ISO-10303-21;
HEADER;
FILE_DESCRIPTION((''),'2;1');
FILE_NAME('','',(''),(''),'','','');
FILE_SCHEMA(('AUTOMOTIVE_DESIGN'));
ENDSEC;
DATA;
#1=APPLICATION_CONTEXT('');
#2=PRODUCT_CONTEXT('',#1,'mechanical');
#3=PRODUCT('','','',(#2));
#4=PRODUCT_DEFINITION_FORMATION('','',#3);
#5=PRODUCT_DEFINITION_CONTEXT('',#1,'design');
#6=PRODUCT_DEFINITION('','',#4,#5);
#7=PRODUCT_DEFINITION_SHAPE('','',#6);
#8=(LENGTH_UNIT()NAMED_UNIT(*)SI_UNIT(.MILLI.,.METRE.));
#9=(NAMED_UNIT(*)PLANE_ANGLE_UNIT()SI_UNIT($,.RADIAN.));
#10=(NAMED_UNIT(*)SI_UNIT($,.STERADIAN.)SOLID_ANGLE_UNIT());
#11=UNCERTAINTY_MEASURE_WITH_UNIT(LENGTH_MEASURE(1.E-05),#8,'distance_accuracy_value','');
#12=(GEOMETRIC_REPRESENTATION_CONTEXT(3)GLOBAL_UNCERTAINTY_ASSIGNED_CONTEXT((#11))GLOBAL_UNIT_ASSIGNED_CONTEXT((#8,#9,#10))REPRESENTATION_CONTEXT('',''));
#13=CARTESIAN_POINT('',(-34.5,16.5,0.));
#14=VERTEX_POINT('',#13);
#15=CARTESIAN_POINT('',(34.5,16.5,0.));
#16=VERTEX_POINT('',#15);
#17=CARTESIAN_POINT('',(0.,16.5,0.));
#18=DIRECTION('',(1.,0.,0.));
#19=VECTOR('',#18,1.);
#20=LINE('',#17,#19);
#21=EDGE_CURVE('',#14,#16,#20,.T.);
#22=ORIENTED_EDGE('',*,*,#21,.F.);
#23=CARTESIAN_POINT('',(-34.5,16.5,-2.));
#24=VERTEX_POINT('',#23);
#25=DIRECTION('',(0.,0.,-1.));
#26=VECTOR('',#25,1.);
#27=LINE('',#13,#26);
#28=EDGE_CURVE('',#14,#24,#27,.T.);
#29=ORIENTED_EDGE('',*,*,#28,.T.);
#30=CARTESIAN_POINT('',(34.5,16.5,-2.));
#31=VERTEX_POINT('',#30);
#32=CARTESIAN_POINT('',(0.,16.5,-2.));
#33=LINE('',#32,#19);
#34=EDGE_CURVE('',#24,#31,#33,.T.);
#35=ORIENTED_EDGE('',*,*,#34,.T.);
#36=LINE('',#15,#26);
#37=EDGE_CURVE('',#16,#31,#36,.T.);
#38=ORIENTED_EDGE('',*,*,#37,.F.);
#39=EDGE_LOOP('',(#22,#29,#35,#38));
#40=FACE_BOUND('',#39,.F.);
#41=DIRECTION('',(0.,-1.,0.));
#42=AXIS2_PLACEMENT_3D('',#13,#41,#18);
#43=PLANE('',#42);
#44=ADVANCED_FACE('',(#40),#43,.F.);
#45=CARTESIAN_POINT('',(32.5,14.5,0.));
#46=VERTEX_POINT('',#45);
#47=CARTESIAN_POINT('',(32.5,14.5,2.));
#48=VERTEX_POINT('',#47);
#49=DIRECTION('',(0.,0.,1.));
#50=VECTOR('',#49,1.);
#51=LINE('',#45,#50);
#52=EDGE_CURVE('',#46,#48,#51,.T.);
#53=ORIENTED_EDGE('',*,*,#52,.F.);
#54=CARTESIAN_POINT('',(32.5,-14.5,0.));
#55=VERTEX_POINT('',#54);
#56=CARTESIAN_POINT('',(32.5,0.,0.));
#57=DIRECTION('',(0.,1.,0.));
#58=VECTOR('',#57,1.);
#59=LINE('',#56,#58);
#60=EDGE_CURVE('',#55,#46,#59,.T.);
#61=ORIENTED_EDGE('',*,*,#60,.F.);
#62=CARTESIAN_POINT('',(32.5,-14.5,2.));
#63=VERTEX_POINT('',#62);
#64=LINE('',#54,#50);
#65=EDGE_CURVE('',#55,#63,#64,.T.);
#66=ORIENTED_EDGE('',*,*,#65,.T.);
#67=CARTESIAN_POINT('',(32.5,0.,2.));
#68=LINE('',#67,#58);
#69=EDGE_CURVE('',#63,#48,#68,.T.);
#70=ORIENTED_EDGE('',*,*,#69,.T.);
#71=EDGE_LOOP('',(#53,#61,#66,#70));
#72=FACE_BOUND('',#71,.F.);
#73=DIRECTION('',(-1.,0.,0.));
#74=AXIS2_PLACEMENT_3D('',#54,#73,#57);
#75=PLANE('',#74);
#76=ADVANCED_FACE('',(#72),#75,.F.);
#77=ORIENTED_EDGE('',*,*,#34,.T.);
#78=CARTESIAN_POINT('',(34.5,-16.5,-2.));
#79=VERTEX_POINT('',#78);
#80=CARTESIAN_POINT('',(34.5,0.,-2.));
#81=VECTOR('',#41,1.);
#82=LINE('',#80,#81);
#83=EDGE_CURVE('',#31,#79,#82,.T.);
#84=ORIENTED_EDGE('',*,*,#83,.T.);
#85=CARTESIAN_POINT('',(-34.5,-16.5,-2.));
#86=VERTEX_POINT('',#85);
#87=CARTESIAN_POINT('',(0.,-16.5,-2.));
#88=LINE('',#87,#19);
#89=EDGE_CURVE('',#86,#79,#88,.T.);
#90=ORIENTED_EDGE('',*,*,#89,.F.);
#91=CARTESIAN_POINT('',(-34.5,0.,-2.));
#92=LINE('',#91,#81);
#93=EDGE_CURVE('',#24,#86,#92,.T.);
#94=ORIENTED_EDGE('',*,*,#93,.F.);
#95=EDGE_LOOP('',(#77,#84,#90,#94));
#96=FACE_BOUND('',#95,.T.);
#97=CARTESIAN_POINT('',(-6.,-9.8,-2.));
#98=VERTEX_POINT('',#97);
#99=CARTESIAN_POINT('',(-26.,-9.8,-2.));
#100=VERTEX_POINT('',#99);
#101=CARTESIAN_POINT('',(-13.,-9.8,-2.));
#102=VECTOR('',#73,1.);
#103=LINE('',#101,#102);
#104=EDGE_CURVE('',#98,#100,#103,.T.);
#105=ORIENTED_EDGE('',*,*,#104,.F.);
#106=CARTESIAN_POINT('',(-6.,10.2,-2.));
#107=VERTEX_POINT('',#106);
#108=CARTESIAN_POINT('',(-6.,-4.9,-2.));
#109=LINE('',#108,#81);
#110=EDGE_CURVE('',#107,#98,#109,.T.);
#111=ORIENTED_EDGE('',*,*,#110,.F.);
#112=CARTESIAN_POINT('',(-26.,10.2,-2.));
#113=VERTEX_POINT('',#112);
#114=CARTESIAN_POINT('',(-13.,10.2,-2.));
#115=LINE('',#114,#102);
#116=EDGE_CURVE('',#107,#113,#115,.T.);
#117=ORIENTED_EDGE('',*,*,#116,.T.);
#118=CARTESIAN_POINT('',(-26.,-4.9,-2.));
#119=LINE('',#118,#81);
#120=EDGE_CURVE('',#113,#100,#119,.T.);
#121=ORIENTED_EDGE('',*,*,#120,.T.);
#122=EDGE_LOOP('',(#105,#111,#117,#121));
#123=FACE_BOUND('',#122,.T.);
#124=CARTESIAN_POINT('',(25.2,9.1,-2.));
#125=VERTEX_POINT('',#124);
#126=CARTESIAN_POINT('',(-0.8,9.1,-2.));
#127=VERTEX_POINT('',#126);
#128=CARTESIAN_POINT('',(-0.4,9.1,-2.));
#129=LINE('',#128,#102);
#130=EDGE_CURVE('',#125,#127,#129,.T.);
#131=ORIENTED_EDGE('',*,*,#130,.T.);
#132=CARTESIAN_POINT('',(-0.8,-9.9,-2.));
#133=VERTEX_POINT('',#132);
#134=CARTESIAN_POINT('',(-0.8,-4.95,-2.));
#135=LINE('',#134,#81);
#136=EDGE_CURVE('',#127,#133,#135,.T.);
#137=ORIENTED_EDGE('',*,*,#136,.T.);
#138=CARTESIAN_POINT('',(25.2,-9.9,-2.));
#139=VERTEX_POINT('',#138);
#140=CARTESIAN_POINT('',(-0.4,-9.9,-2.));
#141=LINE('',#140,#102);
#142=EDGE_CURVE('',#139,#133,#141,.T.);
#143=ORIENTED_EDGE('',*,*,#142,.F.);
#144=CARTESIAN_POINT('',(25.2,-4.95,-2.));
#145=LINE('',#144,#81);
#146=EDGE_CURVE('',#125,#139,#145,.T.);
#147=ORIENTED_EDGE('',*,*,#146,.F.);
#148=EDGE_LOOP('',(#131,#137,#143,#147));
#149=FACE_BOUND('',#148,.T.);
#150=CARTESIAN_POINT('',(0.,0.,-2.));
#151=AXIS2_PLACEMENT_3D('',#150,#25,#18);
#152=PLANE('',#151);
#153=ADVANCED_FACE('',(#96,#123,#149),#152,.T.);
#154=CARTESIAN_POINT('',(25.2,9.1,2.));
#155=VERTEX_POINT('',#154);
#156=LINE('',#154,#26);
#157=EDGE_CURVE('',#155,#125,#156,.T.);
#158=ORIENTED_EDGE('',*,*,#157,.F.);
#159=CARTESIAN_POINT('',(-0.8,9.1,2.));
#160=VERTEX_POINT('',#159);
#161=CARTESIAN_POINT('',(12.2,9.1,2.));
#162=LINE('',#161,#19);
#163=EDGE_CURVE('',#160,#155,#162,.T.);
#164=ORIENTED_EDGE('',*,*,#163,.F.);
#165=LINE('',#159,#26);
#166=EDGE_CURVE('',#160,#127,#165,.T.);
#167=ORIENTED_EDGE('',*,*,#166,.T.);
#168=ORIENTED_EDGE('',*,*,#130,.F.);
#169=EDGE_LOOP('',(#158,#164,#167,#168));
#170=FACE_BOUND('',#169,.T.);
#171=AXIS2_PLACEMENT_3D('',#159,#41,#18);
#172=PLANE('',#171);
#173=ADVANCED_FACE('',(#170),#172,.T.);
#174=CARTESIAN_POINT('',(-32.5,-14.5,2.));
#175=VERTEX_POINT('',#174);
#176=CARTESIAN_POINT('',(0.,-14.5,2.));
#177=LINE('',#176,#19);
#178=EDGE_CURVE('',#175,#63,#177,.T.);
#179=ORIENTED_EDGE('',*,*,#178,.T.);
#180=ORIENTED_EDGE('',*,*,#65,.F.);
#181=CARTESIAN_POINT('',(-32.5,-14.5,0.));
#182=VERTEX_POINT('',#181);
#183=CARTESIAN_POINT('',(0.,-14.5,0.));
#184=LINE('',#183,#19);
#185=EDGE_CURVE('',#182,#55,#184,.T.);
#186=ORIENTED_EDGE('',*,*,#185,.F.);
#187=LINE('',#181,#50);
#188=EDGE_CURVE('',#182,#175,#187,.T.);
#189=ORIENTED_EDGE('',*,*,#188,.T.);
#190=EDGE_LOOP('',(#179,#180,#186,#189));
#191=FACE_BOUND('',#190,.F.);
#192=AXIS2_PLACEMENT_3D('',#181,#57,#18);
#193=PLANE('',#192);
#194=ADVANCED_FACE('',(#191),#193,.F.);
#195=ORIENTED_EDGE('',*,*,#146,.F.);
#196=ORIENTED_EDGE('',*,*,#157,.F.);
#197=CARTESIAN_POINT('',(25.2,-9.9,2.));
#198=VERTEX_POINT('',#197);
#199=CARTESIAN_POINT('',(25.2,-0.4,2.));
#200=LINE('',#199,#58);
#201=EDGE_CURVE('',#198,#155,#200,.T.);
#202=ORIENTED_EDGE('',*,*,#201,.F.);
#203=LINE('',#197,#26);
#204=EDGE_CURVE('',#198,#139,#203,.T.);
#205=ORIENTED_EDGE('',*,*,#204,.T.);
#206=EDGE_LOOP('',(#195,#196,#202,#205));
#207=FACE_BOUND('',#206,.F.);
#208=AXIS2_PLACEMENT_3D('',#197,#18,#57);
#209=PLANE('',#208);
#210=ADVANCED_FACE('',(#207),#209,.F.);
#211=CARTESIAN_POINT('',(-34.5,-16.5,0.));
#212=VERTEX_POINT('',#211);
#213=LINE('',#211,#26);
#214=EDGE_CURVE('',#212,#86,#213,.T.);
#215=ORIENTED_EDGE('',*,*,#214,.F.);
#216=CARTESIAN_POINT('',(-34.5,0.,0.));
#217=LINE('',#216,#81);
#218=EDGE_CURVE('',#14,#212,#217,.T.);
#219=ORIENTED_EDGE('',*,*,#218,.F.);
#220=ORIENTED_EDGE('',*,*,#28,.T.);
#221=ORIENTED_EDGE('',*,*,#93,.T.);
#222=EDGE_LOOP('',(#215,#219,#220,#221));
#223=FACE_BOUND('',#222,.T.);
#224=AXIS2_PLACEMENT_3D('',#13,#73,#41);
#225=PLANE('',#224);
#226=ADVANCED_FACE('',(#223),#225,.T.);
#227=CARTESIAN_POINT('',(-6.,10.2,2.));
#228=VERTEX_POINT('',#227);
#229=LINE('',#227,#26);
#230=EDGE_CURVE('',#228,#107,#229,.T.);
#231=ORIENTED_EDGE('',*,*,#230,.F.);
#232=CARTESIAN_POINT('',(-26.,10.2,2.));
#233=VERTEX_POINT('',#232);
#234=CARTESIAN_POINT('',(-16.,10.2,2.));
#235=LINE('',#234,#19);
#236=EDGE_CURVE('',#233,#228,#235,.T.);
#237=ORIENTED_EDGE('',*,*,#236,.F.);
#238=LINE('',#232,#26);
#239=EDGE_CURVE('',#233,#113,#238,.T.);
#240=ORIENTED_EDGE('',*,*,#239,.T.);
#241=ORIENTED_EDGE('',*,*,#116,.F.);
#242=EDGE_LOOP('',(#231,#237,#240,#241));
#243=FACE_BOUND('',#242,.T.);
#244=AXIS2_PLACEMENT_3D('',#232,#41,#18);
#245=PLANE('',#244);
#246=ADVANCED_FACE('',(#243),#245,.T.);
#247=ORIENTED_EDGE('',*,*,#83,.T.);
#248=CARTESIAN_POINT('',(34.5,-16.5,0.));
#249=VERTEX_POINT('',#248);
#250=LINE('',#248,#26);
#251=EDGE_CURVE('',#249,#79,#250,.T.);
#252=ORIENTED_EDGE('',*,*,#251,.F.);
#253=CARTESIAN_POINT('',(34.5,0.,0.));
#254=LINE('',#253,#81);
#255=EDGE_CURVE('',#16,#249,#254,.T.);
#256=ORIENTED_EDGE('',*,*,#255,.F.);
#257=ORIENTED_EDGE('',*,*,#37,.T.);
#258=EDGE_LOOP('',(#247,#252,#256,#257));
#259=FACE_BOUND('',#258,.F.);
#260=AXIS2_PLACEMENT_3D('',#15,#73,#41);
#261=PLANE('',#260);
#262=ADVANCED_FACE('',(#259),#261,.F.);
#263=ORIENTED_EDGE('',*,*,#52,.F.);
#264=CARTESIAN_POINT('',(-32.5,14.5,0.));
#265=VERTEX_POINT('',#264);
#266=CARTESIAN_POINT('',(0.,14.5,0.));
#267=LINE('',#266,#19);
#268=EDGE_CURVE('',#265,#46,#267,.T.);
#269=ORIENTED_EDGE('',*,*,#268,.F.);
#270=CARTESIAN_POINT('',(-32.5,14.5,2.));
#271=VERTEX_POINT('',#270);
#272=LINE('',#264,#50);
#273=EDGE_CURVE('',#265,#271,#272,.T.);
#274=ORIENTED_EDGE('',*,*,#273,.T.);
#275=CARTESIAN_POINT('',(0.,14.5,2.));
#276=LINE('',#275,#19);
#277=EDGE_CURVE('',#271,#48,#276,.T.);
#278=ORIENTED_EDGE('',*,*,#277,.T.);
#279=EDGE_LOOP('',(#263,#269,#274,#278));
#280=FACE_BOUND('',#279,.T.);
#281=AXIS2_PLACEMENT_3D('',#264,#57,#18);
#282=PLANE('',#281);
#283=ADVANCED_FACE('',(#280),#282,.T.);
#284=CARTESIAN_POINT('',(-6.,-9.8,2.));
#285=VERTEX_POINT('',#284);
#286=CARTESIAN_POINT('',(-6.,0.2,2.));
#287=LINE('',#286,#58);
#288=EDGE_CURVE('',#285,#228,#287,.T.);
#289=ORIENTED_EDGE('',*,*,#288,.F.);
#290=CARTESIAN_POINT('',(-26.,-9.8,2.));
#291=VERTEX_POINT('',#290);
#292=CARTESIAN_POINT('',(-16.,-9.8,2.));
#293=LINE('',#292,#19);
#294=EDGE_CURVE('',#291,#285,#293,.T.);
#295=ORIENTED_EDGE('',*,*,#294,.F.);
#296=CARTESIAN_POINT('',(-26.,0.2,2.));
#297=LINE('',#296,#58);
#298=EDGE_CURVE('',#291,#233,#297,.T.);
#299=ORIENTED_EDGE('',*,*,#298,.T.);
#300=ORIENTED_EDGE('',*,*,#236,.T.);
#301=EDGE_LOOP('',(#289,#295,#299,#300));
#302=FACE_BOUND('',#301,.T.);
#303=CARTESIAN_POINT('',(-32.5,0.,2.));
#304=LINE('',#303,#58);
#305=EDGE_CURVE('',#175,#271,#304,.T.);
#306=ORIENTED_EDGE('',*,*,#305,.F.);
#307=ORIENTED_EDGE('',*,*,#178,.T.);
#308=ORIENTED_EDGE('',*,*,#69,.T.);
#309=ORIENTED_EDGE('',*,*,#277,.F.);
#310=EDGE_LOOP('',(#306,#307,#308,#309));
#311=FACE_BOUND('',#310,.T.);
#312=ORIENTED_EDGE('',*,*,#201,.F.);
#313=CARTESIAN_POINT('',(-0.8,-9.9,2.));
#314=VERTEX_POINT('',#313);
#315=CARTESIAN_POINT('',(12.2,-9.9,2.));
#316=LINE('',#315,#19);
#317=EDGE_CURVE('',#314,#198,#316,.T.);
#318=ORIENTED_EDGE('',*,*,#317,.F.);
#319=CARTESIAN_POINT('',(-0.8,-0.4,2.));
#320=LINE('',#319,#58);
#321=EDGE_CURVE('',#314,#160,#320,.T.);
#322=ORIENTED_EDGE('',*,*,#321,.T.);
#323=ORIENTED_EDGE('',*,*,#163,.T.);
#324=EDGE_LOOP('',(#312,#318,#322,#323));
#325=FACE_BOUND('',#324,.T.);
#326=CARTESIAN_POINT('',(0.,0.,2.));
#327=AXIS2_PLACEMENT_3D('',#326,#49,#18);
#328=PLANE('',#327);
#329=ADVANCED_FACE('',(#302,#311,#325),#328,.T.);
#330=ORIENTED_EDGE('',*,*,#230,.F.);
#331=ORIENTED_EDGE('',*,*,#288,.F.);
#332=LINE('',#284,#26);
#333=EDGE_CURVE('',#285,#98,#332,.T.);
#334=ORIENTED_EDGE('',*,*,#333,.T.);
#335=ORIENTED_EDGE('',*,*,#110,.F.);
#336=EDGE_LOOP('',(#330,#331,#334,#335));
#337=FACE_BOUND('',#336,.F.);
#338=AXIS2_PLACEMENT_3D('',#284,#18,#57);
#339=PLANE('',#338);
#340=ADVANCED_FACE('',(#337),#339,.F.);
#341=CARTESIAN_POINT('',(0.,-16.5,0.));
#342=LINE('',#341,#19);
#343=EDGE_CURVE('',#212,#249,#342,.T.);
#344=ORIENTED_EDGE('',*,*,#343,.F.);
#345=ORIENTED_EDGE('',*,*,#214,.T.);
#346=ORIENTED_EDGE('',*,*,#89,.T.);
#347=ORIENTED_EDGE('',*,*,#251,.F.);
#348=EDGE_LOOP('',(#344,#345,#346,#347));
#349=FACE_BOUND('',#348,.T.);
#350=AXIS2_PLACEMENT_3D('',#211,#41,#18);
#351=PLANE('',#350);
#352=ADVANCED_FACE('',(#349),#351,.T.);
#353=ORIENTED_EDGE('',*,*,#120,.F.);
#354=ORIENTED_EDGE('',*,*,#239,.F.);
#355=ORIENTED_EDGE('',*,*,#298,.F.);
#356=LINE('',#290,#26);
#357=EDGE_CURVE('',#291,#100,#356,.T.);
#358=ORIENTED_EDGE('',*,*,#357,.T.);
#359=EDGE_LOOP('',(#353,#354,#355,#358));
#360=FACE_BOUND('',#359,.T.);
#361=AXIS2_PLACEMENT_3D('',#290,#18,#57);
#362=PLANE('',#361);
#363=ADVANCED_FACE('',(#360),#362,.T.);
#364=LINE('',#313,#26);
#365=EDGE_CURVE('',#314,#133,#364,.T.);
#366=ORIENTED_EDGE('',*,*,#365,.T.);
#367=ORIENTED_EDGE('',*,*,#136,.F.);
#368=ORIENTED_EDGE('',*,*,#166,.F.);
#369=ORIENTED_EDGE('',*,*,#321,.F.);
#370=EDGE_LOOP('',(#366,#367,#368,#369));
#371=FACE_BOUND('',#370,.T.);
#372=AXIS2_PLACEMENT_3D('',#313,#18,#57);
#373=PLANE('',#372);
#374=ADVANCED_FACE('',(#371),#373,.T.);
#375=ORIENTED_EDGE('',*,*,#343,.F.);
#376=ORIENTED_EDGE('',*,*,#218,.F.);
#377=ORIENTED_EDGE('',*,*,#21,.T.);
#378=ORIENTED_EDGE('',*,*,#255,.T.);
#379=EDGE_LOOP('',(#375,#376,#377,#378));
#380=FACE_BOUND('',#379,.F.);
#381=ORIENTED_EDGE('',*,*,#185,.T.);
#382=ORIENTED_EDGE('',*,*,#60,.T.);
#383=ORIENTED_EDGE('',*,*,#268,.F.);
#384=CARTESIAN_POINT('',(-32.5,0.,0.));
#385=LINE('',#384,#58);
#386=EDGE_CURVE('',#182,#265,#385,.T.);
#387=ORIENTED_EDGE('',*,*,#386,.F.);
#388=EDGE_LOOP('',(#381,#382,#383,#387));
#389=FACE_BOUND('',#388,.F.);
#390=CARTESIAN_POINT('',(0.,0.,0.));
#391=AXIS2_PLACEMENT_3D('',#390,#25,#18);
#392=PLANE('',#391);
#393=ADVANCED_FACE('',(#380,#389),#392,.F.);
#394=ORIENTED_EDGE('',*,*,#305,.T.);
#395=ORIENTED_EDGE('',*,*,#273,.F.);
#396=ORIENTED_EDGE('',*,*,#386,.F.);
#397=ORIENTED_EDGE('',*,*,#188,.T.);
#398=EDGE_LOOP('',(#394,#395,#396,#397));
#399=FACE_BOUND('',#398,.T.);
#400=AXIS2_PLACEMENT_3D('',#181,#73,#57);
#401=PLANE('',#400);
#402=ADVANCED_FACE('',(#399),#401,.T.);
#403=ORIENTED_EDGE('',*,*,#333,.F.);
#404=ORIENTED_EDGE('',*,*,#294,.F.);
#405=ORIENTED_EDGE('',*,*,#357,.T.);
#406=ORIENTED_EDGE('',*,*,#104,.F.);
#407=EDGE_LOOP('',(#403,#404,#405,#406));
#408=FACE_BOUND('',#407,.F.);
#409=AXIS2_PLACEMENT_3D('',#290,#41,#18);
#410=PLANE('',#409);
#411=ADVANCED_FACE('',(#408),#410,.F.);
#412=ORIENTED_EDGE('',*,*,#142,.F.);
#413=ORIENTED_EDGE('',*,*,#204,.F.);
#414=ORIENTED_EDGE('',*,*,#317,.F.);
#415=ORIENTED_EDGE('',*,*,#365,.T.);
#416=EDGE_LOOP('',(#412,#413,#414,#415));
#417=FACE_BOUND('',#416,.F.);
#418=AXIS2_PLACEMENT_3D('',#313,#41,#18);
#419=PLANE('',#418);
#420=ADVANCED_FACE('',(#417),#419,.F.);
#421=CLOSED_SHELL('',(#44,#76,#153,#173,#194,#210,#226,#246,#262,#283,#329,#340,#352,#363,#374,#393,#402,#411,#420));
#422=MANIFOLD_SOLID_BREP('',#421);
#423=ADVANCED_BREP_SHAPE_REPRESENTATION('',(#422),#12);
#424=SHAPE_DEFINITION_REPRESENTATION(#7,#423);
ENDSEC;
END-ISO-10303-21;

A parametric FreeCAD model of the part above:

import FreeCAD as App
import Part
import Sketcher


def add_polygon(sketch, points):
    """Adds a closed chain of lines whose ends are joined by coincident constraints."""
    first, n = sketch.GeometryCount, len(points)
    for a, b in zip(points, points[1:] + points[:1]):
        sketch.addGeometry(Part.LineSegment(App.Vector(*a, 0), App.Vector(*b, 0)), False)
    for i in range(n):
        sketch.addConstraint(Sketcher.Constraint("Coincident", first + i, 2, first + (i + 1) % n, 1))

doc = App.newDocument("Part")
body = doc.addObject("PartDesign::Body", "Body")

sketch1 = doc.addObject("Sketcher::SketchObject", "Sketch")
body.addObject(sketch1)
sketch1.AttachmentSupport = (doc.XY_Plane, [""])
sketch1.MapMode = "FlatFace"
add_polygon(sketch1, [(-32, 14), (-32, -14), (32, -14), (32, 14)])
sketch1.addConstraint(Sketcher.Constraint("Vertical", 0))
sketch1.addConstraint(Sketcher.Constraint("Horizontal", 1))
sketch1.addConstraint(Sketcher.Constraint("Vertical", 2))
sketch1.addConstraint(Sketcher.Constraint("Horizontal", 3))
sketch1.addConstraint(Sketcher.Constraint("Symmetric", 0, 2, 2, 2, -1, 1))
sketch1.addConstraint(Sketcher.Constraint("DistanceX", 1, 1, 1, 2, 65.0))
sketch1.addConstraint(Sketcher.Constraint("DistanceY", 0, 2, 0, 1, 29.0))
pad1 = doc.addObject("PartDesign::Pad", "Pad")
body.addObject(pad1)
pad1.Profile = sketch1
pad1.Length = 2

sketch2 = doc.addObject("Sketcher::SketchObject", "Sketch001")
body.addObject(sketch2)
sketch2.AttachmentSupport = (doc.XY_Plane, [""])
sketch2.MapMode = "FlatFace"
add_polygon(sketch2, [(-34, -16), (-34, 16), (34, 16), (34, -16)])
sketch2.addConstraint(Sketcher.Constraint("Vertical", 0))
sketch2.addConstraint(Sketcher.Constraint("Horizontal", 1))
sketch2.addConstraint(Sketcher.Constraint("Vertical", 2))
sketch2.addConstraint(Sketcher.Constraint("Horizontal", 3))
sketch2.addConstraint(Sketcher.Constraint("Symmetric", 0, 2, 2, 2, -1, 1))
sketch2.addConstraint(Sketcher.Constraint("DistanceX", 1, 1, 1, 2, 69.0))
sketch2.addConstraint(Sketcher.Constraint("DistanceY", 0, 1, 0, 2, 33.0))
pad2 = doc.addObject("PartDesign::Pad", "Pad001")
body.addObject(pad2)
pad2.Profile = sketch2
pad2.Length = 2
pad2.Reversed = True

sketch3 = doc.addObject("Sketcher::SketchObject", "Sketch002")
body.addObject(sketch3)
sketch3.AttachmentSupport = (doc.XY_Plane, [""])
sketch3.MapMode = "FlatFace"
sketch3.AttachmentOffset = App.Placement(App.Vector(0, 0, 2), App.Rotation())
add_polygon(sketch3, [(-26, 10), (-26, -10), (-6, -10), (-6, 10)])
add_polygon(sketch3, [(-1, 9), (-1, -10), (25, -10), (25, 9)])
sketch3.addConstraint(Sketcher.Constraint("Vertical", 0))
sketch3.addConstraint(Sketcher.Constraint("Horizontal", 1))
sketch3.addConstraint(Sketcher.Constraint("Vertical", 2))
sketch3.addConstraint(Sketcher.Constraint("Horizontal", 3))
sketch3.addConstraint(Sketcher.Constraint("Vertical", 4))
sketch3.addConstraint(Sketcher.Constraint("Horizontal", 5))
sketch3.addConstraint(Sketcher.Constraint("Vertical", 6))
sketch3.addConstraint(Sketcher.Constraint("Horizontal", 7))
sketch3.addConstraint(Sketcher.Constraint("Equal", 3, 0))
sketch3.addConstraint(Sketcher.Constraint("DistanceX", 1, 1, 1, 2, 20.0))
sketch3.addConstraint(Sketcher.Constraint("DistanceX", 5, 1, 5, 2, 26.0))
sketch3.addConstraint(Sketcher.Constraint("DistanceY", 4, 2, 4, 1, 19.0))
sketch3.addConstraint(Sketcher.Constraint("DistanceX", 0, 2, -1, 1, 26.0))
sketch3.addConstraint(Sketcher.Constraint("DistanceY", 0, 2, -1, 1, 9.8))
sketch3.addConstraint(Sketcher.Constraint("DistanceX", 4, 2, -1, 1, 0.8))
sketch3.addConstraint(Sketcher.Constraint("DistanceY", 4, 2, -1, 1, 9.9))
pocket1 = doc.addObject("PartDesign::Pocket", "Pocket")
body.addObject(pocket1)
pocket1.Profile = sketch3
pocket1.Type = "ThroughAll"

doc.recompute()
